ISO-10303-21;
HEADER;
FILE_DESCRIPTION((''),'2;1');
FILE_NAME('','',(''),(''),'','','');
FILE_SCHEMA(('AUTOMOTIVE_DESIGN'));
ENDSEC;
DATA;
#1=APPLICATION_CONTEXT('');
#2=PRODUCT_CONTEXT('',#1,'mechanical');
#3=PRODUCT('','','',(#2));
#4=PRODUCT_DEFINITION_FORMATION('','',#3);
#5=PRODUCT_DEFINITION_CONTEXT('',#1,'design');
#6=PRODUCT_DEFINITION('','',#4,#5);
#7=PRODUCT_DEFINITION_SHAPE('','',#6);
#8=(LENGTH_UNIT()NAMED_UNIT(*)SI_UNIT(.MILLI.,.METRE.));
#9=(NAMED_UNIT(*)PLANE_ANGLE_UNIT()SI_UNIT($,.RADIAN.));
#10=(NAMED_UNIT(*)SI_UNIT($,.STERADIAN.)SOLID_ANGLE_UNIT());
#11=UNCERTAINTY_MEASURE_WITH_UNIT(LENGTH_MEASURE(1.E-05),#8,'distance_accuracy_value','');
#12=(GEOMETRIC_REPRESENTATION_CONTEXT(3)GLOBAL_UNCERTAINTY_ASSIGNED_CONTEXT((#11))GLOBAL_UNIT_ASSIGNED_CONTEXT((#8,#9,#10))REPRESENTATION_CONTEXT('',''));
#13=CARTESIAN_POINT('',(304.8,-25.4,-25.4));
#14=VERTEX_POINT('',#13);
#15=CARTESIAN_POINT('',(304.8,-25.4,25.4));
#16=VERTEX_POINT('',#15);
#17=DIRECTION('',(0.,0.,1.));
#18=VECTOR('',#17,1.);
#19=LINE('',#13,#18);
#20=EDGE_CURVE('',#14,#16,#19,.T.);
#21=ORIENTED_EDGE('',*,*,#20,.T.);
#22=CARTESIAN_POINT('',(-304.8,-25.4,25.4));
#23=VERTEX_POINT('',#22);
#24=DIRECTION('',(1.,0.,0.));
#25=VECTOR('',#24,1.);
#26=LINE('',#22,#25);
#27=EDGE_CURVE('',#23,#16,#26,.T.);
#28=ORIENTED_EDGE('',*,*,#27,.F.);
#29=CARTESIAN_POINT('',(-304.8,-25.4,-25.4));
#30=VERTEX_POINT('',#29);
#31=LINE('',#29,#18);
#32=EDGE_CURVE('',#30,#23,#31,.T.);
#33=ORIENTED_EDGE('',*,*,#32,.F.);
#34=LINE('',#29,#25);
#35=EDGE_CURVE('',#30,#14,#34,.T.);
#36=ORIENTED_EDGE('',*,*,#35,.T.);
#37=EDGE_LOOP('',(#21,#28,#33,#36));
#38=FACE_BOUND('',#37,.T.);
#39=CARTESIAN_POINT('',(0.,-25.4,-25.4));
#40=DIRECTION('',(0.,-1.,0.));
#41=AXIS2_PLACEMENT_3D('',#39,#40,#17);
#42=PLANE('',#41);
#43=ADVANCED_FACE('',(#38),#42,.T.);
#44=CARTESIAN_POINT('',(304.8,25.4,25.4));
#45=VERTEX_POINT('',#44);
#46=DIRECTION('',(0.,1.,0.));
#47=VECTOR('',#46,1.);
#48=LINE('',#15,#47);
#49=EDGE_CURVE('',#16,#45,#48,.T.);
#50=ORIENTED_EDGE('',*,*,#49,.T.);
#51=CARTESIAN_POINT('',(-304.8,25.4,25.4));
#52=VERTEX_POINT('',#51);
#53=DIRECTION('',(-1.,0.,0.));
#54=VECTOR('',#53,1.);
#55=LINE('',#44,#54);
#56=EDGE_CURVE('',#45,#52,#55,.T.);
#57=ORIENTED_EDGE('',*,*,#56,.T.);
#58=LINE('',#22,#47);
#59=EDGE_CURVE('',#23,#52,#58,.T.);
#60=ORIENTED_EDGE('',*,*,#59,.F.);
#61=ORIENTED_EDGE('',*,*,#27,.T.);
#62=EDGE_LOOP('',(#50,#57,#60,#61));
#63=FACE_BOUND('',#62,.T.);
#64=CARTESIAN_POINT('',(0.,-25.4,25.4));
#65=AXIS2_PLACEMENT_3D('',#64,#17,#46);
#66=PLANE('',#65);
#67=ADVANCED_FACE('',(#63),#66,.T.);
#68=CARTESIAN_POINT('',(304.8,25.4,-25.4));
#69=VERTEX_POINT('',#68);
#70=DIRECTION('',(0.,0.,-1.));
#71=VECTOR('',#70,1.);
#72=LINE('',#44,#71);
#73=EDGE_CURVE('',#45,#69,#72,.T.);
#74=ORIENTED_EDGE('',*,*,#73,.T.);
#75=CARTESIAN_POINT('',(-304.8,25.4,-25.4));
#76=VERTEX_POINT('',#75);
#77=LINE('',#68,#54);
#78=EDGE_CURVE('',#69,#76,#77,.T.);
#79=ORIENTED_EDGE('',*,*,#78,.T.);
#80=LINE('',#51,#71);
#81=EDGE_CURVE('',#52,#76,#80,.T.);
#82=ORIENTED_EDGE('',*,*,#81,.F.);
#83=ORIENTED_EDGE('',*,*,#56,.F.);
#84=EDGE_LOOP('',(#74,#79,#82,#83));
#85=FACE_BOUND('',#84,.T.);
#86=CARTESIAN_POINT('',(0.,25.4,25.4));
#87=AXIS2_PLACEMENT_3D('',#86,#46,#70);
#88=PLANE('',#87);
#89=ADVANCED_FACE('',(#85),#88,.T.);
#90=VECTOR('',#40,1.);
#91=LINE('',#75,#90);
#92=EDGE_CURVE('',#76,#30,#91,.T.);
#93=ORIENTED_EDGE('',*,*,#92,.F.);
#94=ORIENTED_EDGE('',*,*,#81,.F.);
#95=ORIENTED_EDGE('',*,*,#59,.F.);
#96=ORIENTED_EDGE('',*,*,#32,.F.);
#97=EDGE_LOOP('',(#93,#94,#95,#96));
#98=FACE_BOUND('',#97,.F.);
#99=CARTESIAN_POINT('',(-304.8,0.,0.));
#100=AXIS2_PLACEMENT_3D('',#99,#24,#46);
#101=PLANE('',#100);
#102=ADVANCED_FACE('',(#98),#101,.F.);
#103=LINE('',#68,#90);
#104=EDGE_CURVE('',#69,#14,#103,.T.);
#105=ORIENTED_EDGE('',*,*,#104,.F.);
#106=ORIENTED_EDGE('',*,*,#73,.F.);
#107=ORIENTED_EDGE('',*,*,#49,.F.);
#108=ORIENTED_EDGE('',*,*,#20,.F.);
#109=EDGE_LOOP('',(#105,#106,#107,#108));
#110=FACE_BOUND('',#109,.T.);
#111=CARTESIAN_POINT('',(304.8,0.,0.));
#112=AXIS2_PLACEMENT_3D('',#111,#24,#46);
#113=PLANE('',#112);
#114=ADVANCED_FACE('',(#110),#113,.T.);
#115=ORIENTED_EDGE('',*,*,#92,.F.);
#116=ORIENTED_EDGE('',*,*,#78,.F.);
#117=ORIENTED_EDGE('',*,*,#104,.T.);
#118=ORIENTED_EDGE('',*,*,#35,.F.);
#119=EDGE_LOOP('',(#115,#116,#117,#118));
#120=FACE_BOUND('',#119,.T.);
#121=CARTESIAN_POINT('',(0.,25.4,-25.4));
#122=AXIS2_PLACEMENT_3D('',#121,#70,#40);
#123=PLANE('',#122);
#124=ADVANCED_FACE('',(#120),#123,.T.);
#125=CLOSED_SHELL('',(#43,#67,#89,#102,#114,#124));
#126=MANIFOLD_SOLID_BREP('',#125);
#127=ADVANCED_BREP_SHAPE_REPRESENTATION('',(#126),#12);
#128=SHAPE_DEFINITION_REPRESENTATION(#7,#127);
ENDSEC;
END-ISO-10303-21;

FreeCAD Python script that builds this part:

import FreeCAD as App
import Part
import Sketcher
Q = App.Units.Quantity

doc = App.newDocument("Part")
params = doc.addObject("Spreadsheet::Sheet", "Params")
for row, (alias, value) in enumerate([
    ("sketch1_width", "2 in"),
    ("pad1_length", "24 in"),
], start=1):
    params.set(f"A{row}", alias)
    params.set(f"B{row}", "=" + value)
    params.setAlias(f"B{row}", alias)

body = doc.addObject("PartDesign::Body", "Body")

# Sketch on YZ plane
sketch1 = body.newObject("Sketcher::SketchObject", "Sketch")
sketch1.AttachmentSupport = (doc.getObject("YZ_Plane"), [""])
sketch1.MapMode = "FlatFace"
sketch1.addGeometry([
    Part.LineSegment(App.Vector(25, 25, 0), App.Vector(-25, 25, 0)),
    Part.LineSegment(App.Vector(-25, 25, 0), App.Vector(-25, -25, 0)),
    Part.LineSegment(App.Vector(-25, -25, 0), App.Vector(25, -25, 0)),
    Part.LineSegment(App.Vector(25, -25, 0), App.Vector(25, 25, 0)),
], False)
sketch1.addConstraint([
    Sketcher.Constraint("Coincident", 0, 2, 1, 1),
    Sketcher.Constraint("Coincident", 1, 2, 2, 1),
    Sketcher.Constraint("Coincident", 2, 2, 3, 1),
    Sketcher.Constraint("Coincident", 3, 2, 0, 1),
    Sketcher.Constraint("Horizontal", 0),
    Sketcher.Constraint("Vertical", 1),
    Sketcher.Constraint("Horizontal", 2),
    Sketcher.Constraint("Vertical", 3),
    Sketcher.Constraint("Symmetric", 0, 2, 2, 2, -1, 1),
    Sketcher.Constraint("Equal", 2, 1),
    Sketcher.Constraint("DistanceX", 0, 2, 0, 1, Q("2 in")),
])
sketch1.setExpression("Constraints[10]", "Params.sketch1_width")
pad1 = body.newObject("PartDesign::Pad", "Pad")
pad1.Profile = sketch1
pad1.setExpression("Length", "Params.pad1_length")
pad1.Midplane = True

doc.recompute()
